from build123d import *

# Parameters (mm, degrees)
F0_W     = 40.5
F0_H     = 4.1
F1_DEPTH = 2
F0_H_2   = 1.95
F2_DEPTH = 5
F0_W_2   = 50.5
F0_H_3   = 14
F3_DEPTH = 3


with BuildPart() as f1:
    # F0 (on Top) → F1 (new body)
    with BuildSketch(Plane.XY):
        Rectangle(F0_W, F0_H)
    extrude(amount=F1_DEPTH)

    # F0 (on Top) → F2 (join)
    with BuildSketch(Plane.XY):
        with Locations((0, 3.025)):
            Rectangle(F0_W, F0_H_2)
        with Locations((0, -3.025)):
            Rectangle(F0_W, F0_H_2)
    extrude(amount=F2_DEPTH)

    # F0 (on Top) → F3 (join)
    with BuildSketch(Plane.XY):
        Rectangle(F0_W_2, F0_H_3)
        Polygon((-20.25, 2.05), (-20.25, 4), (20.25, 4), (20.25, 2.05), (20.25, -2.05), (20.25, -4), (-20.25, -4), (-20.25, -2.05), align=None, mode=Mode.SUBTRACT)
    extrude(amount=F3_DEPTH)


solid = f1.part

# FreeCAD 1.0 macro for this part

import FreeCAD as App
import Part
import Sketcher

V = App.Vector
Q = App.Units.Quantity


def add_polygon(sketch, points):
    """Adds a closed chain of lines whose ends are joined by coincident constraints."""
    first, n = sketch.GeometryCount, len(points)
    for a, b in zip(points, points[1:] + points[:1]):
        sketch.addGeometry(Part.LineSegment(App.Vector(*a, 0), App.Vector(*b, 0)), False)
    for i in range(n):
        sketch.addConstraint(Sketcher.Constraint("Coincident", first + i, 2, first + (i + 1) % n, 1))

doc = App.newDocument("Part")
params = doc.addObject("Spreadsheet::Sheet", "Params")
for row, (alias, value) in enumerate([
    ("sketch1_width", "40.5 mm"),
    ("sketch1_height", "4.1 mm"),
    ("pad1_length", "2 mm"),
    ("sketch2_width", "40.5 mm"),
    ("sketch2_height", "1.95 mm"),
    ("pad2_length", "5 mm"),
    ("sketch3_height", "14 mm"),
    ("sketch3_height2", "8 mm"),
    ("sketch3_width", "50.5 mm"),
    ("sketch3_width2", "40.5 mm"),
    ("pad3_length", "3 mm"),
], start=1):
    params.set(f"A{row}", alias)
    params.set(f"B{row}", "=" + value)
    params.setAlias(f"B{row}", alias)

body = doc.addObject("PartDesign::Body", "Body")

sketch1 = body.newObject("Sketcher::SketchObject", "Sketch")
sketch1.AttachmentSupport = (doc.getObject("XY_Plane"), [""])
sketch1.MapMode = "FlatFace"
add_polygon(sketch1, [(-20.2, 2), (-20.2, -2), (20.2, -2), (20.2, 2)])
sketch1.addConstraint(Sketcher.Constraint("Vertical", 0))
sketch1.addConstraint(Sketcher.Constraint("Horizontal", 1))
sketch1.addConstraint(Sketcher.Constraint("Vertical", 2))
sketch1.addConstraint(Sketcher.Constraint("Horizontal", 3))
sketch1.addConstraint(Sketcher.Constraint("Symmetric", 0, 2, 2, 2, -1, 1))
sketch1.addConstraint(Sketcher.Constraint("DistanceX", 1, 1, 1, 2, Q("40.5 mm")))
sketch1.addConstraint(Sketcher.Constraint("DistanceY", 0, 2, 0, 1, Q("4.1 mm")))
sketch1.setExpression("Constraints[9]", "Params.sketch1_width")
sketch1.setExpression("Constraints[10]", "Params.sketch1_height")
pad1 = body.newObject("PartDesign::Pad", "Pad")
pad1.Profile = sketch1
pad1.setExpression("Length", "Params.pad1_length")

sketch2 = body.newObject("Sketcher::SketchObject", "Sketch001")
sketch2.AttachmentSupport = (doc.getObject("XY_Plane"), [""])
sketch2.MapMode = "FlatFace"
add_polygon(sketch2, [(-20.2, 4), (-20.2, 2), (20.2, 2), (20.2, 4)])
add_polygon(sketch2, [(-20.2, -2), (-20.2, -4), (20.2, -4), (20.2, -2)])
sketch2.addConstraint(Sketcher.Constraint("Vertical", 0))
sketch2.addConstraint(Sketcher.Constraint("Horizontal", 1))
sketch2.addConstraint(Sketcher.Constraint("Vertical", 2))
sketch2.addConstraint(Sketcher.Constraint("Horizontal", 3))
sketch2.addConstraint(Sketcher.Constraint("Vertical", 4))
sketch2.addConstraint(Sketcher.Constraint("Horizontal", 5))
sketch2.addConstraint(Sketcher.Constraint("Vertical", 6))
sketch2.addConstraint(Sketcher.Constraint("Horizontal", 7))
sketch2.addConstraint(Sketcher.Constraint("Symmetric", 2, 2, 4, 2, -1, 1))
sketch2.addConstraint(Sketcher.Constraint("Symmetric", 0, 2, 6, 2, -1, 1))
sketch2.addConstraint(Sketcher.Constraint("Vertical", 3, 2, 4, 2))
sketch2.addConstraint(Sketcher.Constraint("DistanceX", 1, 1, 1, 2, Q("40.5 mm")))
sketch2.addConstraint(Sketcher.Constraint("DistanceY", -1, 1, 2, 2, Q("4 mm")))
sketch2.addConstraint(Sketcher.Constraint("DistanceY", 0, 2, 0, 1, Q("1.95 mm")))
sketch2.setExpression("Constraints[19]", "Params.sketch2_width")
sketch2.setExpression("Constraints[21]", "Params.sketch2_height")
pad2 = body.newObject("PartDesign::Pad", "Pad001")
pad2.Profile = sketch2
pad2.setExpression("Length", "Params.pad2_length")

sketch3 = body.newObject("Sketcher::SketchObject", "Sketch002")
sketch3.AttachmentSupport = (doc.getObject("XY_Plane"), [""])
sketch3.MapMode = "FlatFace"
add_polygon(sketch3, [(-25, 7), (-25, -7), (25, -7), (25, 7)])
add_polygon(sketch3, [(-20, -4), (-20, 4), (20, 4), (20, -4)])
sketch3.addConstraint(Sketcher.Constraint("Vertical", 0))
sketch3.addConstraint(Sketcher.Constraint("Horizontal", 1))
sketch3.addConstraint(Sketcher.Constraint("Vertical", 2))
sketch3.addConstraint(Sketcher.Constraint("Horizontal", 3))
sketch3.addConstraint(Sketcher.Constraint("Vertical", 4))
sketch3.addConstraint(Sketcher.Constraint("Horizontal", 5))
sketch3.addConstraint(Sketcher.Constraint("Vertical", 6))
sketch3.addConstraint(Sketcher.Constraint("Horizontal", 7))
sketch3.addConstraint(Sketcher.Constraint("Symmetric", 0, 2, 2, 2, -1, 1))
sketch3.addConstraint(Sketcher.Constraint("Symmetric", 4, 2, 6, 2, -1, 1))
sketch3.addConstraint(Sketcher.Constraint("DistanceY", 0, 2, 0, 1, Q("14 mm")))
sketch3.addConstraint(Sketcher.Constraint("DistanceY", 4, 1, 4, 2, Q("8 mm")))
sketch3.addConstraint(Sketcher.Constraint("DistanceX", 1, 1, 1, 2, Q("50.5 mm")))
sketch3.addConstraint(Sketcher.Constraint("DistanceX", 5, 1, 5, 2, Q("40.5 mm")))
sketch3.setExpression("Constraints[18]", "Params.sketch3_height")
sketch3.setExpression("Constraints[19]", "Params.sketch3_height2")
sketch3.setExpression("Constraints[20]", "Params.sketch3_width")
sketch3.setExpression("Constraints[21]", "Params.sketch3_width2")
pad3 = body.newObject("PartDesign::Pad", "Pad002")
pad3.Profile = sketch3
pad3.setExpression("Length", "Params.pad3_length")

doc.recompute()
